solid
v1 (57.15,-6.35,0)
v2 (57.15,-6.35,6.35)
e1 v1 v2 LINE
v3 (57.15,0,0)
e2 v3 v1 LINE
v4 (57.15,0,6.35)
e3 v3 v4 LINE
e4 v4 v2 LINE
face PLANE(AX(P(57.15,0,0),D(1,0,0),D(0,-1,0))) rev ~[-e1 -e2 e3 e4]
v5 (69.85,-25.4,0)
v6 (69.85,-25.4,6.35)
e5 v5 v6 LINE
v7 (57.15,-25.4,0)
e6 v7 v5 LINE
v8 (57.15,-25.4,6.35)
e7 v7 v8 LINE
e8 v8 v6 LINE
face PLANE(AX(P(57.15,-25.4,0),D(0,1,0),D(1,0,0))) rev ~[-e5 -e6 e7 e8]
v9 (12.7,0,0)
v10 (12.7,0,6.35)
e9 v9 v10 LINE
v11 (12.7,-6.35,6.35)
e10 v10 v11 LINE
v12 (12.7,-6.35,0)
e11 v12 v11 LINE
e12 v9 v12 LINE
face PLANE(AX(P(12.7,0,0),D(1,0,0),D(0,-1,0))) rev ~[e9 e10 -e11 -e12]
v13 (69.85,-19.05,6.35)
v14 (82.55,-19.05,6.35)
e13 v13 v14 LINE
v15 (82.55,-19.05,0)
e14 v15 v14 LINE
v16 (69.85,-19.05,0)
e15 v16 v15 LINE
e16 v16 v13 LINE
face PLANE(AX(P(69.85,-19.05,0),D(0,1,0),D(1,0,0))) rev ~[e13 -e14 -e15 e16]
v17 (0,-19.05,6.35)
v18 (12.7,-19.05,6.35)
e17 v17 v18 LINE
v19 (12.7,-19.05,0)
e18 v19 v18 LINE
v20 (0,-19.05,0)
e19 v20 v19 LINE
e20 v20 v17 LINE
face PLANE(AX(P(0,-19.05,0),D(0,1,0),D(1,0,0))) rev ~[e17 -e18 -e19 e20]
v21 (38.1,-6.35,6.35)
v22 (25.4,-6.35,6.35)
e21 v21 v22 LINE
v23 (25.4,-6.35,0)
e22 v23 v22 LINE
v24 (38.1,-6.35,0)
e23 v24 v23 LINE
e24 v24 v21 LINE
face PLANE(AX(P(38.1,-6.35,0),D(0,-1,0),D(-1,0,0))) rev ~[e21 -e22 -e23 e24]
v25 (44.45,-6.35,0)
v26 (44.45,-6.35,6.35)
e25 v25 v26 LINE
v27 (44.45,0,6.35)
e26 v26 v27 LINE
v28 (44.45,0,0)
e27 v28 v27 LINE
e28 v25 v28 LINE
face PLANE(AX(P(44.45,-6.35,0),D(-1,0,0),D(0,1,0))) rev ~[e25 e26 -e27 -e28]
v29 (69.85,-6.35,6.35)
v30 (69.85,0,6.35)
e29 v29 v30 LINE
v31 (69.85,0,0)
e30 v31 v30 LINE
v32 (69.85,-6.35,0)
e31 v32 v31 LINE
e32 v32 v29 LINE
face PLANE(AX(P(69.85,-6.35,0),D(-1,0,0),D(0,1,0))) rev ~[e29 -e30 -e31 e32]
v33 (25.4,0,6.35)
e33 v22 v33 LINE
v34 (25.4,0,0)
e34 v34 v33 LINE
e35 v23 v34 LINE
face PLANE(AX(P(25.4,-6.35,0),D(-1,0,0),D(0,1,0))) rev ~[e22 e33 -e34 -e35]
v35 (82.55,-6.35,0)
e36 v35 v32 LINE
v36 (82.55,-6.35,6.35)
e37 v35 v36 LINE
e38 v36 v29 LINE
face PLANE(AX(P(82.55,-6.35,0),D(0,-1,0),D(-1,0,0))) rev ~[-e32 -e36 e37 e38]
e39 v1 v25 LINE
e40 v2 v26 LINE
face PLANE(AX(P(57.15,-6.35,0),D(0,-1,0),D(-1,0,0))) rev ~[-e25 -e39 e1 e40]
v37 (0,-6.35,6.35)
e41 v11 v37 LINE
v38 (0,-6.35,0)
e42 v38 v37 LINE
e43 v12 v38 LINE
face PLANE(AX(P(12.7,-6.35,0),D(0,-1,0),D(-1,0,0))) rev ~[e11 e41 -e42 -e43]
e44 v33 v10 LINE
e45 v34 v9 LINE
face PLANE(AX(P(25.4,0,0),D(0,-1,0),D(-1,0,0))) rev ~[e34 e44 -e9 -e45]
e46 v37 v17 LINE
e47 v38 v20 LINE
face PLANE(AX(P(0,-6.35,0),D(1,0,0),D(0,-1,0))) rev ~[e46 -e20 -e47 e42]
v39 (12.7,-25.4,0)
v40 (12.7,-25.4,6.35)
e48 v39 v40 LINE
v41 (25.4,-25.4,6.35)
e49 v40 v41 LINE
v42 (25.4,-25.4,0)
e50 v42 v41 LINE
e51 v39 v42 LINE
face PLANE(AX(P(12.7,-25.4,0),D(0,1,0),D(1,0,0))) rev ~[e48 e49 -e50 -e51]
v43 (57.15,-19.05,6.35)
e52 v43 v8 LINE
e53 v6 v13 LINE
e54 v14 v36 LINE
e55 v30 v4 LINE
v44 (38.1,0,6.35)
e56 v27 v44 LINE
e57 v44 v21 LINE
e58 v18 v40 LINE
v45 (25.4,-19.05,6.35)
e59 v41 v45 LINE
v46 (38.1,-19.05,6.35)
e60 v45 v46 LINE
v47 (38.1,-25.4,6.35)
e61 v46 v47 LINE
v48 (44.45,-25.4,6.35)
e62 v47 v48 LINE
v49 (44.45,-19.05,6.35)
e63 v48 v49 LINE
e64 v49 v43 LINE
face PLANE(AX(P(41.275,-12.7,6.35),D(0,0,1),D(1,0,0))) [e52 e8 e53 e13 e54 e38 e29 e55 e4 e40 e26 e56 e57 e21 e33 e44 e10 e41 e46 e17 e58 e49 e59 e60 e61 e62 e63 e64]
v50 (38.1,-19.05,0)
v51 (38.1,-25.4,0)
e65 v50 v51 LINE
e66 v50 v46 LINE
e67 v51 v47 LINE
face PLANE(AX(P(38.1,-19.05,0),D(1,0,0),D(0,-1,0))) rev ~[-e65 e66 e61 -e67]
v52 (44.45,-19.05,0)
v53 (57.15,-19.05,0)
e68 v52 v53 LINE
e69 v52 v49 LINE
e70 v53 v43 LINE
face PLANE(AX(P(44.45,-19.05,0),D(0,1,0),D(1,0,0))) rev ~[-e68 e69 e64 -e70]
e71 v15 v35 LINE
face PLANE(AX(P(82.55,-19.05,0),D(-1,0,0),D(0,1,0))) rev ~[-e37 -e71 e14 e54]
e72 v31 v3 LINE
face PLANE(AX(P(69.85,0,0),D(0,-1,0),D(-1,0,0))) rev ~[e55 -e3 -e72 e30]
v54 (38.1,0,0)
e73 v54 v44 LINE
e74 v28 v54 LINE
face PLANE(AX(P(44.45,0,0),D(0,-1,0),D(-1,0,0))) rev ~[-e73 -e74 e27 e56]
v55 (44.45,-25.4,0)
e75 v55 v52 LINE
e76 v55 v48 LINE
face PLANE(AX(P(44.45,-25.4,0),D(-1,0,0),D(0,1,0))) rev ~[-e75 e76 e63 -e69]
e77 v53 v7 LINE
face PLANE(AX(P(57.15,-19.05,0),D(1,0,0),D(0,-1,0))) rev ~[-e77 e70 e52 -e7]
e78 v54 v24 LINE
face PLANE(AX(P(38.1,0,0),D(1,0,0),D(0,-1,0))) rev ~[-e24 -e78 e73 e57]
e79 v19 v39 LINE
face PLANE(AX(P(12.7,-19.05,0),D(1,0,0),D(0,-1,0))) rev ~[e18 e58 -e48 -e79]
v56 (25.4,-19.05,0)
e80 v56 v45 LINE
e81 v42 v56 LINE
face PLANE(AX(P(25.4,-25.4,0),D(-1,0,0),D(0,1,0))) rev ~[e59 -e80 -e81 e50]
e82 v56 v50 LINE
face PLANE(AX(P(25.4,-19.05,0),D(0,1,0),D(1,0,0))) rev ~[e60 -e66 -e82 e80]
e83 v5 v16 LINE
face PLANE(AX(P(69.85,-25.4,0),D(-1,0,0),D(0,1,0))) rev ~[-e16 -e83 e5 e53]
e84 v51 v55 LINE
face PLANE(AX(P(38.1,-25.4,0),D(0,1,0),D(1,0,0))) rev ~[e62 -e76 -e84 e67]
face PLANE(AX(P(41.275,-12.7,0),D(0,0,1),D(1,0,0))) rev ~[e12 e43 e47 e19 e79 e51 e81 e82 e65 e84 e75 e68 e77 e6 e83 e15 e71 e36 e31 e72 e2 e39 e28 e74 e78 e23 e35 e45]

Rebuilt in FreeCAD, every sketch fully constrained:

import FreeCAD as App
import Part
import Sketcher

V = App.Vector
Q = App.Units.Quantity


def add_polygon(sketch, points):
    """Adds a closed chain of lines whose ends are joined by coincident constraints."""
    first, n = sketch.GeometryCount, len(points)
    for a, b in zip(points, points[1:] + points[:1]):
        sketch.addGeometry(Part.LineSegment(App.Vector(*a, 0), App.Vector(*b, 0)), False)
    for i in range(n):
        sketch.addConstraint(Sketcher.Constraint("Coincident", first + i, 2, first + (i + 1) % n, 1))

doc = App.newDocument("Part")
body = doc.addObject("PartDesign::Body", "Body")

# Sketch on XY plane
sketch1 = doc.addObject("Sketcher::SketchObject", "Sketch")
body.addObject(sketch1)
sketch1.AttachmentSupport = (doc.XY_Plane, [""])
sketch1.MapMode = "FlatFace"
add_polygon(sketch1, [(13, -19), (13, -25), (25, -25), (25, -19), (38, -19), (38, -25), (44, -25), (44, -19), (57, -19), (57, -25), (70, -25), (70, -19), (83, -19), (83, -6), (70, -6), (70, 0), (57, 0), (57, -6), (44, -6), (44, 0), (38, 0), (38, -6), (25, -6), (25, 0), (13, 0), (13, -6), (0, -6), (0, -19)])  # lines 0-27
sketch1.addConstraint([
    Sketcher.Constraint("Vertical", 0),
    Sketcher.Constraint("Horizontal", 1),
    Sketcher.Constraint("Vertical", 2),
    Sketcher.Constraint("Horizontal", 3),
    Sketcher.Constraint("Vertical", 4),
    Sketcher.Constraint("Horizontal", 5),
    Sketcher.Constraint("Vertical", 6),
    Sketcher.Constraint("Horizontal", 7),
    Sketcher.Constraint("Vertical", 8),
    Sketcher.Constraint("Horizontal", 9),
    Sketcher.Constraint("Vertical", 10),
    Sketcher.Constraint("Horizontal", 11),
    Sketcher.Constraint("Vertical", 12),
    Sketcher.Constraint("Horizontal", 13),
    Sketcher.Constraint("Vertical", 14),
    Sketcher.Constraint("Horizontal", 15),
    Sketcher.Constraint("Vertical", 16),
    Sketcher.Constraint("Horizontal", 17),
    Sketcher.Constraint("Vertical", 18),
    Sketcher.Constraint("Horizontal", 19),
    Sketcher.Constraint("Vertical", 20),
    Sketcher.Constraint("Horizontal", 21),
    Sketcher.Constraint("Vertical", 22),
    Sketcher.Constraint("Horizontal", 23),
    Sketcher.Constraint("Vertical", 24),
    Sketcher.Constraint("Horizontal", 25),
    Sketcher.Constraint("Vertical", 26),
    Sketcher.Constraint("Horizontal", 27),
    Sketcher.Constraint("PointOnObject", 14, 2, -1),
    Sketcher.Constraint("PointOnObject", 18, 2, -1),
    Sketcher.Constraint("PointOnObject", 22, 2, -1),
    Sketcher.Constraint("PointOnObject", 25, 2, -2),
    Sketcher.Constraint("Horizontal", 1, 2, 4, 2),
    Sketcher.Constraint("Horizontal", 3, 2, 6, 2),
    Sketcher.Constraint("Horizontal", 5, 2, 8, 2),
    Sketcher.Constraint("Horizontal", 7, 2, 10, 2),
    Sketcher.Constraint("Horizontal", 13, 2, 16, 2),
    Sketcher.Constraint("Horizontal", 17, 2, 20, 2),
    Sketcher.Constraint("Horizontal", 21, 2, 24, 2),
    Sketcher.Constraint("Horizontal", 11, 2, 26, 2),
    Sketcher.Constraint("Vertical", 10, 2, 13, 2),
    Sketcher.Constraint("Vertical", 8, 2, 15, 2),
    Sketcher.Constraint("Vertical", 6, 2, 17, 2),
    Sketcher.Constraint("Vertical", 4, 2, 19, 2),
    Sketcher.Constraint("Vertical", 2, 2, 21, 2),
    Sketcher.Constraint("Vertical", 0, 2, 23, 2),
    Sketcher.Constraint("Equal", 1, 3),
    Sketcher.Constraint("Equal", 3, 7),
    Sketcher.Constraint("Equal", 7, 9),
    Sketcher.Constraint("Equal", 9, 11),
    Sketcher.Constraint("Equal", 23, 25),
    Sketcher.Constraint("Equal", 19, 0),
    Sketcher.Constraint("Equal", 27, 12),
    Sketcher.Constraint("Equal", 10, 14),
    Sketcher.Constraint("DistanceX", 1, 1, 1, 2, Q("0.5 in")),
    Sketcher.Constraint("DistanceY", 0, 2, -1, 1, Q("1 in")),
])
pad1 = doc.addObject("PartDesign::Pad", "Pad")
body.addObject(pad1)
pad1.Profile = sketch1
pad1.Length = Q("0.25 in")

doc.recompute()
